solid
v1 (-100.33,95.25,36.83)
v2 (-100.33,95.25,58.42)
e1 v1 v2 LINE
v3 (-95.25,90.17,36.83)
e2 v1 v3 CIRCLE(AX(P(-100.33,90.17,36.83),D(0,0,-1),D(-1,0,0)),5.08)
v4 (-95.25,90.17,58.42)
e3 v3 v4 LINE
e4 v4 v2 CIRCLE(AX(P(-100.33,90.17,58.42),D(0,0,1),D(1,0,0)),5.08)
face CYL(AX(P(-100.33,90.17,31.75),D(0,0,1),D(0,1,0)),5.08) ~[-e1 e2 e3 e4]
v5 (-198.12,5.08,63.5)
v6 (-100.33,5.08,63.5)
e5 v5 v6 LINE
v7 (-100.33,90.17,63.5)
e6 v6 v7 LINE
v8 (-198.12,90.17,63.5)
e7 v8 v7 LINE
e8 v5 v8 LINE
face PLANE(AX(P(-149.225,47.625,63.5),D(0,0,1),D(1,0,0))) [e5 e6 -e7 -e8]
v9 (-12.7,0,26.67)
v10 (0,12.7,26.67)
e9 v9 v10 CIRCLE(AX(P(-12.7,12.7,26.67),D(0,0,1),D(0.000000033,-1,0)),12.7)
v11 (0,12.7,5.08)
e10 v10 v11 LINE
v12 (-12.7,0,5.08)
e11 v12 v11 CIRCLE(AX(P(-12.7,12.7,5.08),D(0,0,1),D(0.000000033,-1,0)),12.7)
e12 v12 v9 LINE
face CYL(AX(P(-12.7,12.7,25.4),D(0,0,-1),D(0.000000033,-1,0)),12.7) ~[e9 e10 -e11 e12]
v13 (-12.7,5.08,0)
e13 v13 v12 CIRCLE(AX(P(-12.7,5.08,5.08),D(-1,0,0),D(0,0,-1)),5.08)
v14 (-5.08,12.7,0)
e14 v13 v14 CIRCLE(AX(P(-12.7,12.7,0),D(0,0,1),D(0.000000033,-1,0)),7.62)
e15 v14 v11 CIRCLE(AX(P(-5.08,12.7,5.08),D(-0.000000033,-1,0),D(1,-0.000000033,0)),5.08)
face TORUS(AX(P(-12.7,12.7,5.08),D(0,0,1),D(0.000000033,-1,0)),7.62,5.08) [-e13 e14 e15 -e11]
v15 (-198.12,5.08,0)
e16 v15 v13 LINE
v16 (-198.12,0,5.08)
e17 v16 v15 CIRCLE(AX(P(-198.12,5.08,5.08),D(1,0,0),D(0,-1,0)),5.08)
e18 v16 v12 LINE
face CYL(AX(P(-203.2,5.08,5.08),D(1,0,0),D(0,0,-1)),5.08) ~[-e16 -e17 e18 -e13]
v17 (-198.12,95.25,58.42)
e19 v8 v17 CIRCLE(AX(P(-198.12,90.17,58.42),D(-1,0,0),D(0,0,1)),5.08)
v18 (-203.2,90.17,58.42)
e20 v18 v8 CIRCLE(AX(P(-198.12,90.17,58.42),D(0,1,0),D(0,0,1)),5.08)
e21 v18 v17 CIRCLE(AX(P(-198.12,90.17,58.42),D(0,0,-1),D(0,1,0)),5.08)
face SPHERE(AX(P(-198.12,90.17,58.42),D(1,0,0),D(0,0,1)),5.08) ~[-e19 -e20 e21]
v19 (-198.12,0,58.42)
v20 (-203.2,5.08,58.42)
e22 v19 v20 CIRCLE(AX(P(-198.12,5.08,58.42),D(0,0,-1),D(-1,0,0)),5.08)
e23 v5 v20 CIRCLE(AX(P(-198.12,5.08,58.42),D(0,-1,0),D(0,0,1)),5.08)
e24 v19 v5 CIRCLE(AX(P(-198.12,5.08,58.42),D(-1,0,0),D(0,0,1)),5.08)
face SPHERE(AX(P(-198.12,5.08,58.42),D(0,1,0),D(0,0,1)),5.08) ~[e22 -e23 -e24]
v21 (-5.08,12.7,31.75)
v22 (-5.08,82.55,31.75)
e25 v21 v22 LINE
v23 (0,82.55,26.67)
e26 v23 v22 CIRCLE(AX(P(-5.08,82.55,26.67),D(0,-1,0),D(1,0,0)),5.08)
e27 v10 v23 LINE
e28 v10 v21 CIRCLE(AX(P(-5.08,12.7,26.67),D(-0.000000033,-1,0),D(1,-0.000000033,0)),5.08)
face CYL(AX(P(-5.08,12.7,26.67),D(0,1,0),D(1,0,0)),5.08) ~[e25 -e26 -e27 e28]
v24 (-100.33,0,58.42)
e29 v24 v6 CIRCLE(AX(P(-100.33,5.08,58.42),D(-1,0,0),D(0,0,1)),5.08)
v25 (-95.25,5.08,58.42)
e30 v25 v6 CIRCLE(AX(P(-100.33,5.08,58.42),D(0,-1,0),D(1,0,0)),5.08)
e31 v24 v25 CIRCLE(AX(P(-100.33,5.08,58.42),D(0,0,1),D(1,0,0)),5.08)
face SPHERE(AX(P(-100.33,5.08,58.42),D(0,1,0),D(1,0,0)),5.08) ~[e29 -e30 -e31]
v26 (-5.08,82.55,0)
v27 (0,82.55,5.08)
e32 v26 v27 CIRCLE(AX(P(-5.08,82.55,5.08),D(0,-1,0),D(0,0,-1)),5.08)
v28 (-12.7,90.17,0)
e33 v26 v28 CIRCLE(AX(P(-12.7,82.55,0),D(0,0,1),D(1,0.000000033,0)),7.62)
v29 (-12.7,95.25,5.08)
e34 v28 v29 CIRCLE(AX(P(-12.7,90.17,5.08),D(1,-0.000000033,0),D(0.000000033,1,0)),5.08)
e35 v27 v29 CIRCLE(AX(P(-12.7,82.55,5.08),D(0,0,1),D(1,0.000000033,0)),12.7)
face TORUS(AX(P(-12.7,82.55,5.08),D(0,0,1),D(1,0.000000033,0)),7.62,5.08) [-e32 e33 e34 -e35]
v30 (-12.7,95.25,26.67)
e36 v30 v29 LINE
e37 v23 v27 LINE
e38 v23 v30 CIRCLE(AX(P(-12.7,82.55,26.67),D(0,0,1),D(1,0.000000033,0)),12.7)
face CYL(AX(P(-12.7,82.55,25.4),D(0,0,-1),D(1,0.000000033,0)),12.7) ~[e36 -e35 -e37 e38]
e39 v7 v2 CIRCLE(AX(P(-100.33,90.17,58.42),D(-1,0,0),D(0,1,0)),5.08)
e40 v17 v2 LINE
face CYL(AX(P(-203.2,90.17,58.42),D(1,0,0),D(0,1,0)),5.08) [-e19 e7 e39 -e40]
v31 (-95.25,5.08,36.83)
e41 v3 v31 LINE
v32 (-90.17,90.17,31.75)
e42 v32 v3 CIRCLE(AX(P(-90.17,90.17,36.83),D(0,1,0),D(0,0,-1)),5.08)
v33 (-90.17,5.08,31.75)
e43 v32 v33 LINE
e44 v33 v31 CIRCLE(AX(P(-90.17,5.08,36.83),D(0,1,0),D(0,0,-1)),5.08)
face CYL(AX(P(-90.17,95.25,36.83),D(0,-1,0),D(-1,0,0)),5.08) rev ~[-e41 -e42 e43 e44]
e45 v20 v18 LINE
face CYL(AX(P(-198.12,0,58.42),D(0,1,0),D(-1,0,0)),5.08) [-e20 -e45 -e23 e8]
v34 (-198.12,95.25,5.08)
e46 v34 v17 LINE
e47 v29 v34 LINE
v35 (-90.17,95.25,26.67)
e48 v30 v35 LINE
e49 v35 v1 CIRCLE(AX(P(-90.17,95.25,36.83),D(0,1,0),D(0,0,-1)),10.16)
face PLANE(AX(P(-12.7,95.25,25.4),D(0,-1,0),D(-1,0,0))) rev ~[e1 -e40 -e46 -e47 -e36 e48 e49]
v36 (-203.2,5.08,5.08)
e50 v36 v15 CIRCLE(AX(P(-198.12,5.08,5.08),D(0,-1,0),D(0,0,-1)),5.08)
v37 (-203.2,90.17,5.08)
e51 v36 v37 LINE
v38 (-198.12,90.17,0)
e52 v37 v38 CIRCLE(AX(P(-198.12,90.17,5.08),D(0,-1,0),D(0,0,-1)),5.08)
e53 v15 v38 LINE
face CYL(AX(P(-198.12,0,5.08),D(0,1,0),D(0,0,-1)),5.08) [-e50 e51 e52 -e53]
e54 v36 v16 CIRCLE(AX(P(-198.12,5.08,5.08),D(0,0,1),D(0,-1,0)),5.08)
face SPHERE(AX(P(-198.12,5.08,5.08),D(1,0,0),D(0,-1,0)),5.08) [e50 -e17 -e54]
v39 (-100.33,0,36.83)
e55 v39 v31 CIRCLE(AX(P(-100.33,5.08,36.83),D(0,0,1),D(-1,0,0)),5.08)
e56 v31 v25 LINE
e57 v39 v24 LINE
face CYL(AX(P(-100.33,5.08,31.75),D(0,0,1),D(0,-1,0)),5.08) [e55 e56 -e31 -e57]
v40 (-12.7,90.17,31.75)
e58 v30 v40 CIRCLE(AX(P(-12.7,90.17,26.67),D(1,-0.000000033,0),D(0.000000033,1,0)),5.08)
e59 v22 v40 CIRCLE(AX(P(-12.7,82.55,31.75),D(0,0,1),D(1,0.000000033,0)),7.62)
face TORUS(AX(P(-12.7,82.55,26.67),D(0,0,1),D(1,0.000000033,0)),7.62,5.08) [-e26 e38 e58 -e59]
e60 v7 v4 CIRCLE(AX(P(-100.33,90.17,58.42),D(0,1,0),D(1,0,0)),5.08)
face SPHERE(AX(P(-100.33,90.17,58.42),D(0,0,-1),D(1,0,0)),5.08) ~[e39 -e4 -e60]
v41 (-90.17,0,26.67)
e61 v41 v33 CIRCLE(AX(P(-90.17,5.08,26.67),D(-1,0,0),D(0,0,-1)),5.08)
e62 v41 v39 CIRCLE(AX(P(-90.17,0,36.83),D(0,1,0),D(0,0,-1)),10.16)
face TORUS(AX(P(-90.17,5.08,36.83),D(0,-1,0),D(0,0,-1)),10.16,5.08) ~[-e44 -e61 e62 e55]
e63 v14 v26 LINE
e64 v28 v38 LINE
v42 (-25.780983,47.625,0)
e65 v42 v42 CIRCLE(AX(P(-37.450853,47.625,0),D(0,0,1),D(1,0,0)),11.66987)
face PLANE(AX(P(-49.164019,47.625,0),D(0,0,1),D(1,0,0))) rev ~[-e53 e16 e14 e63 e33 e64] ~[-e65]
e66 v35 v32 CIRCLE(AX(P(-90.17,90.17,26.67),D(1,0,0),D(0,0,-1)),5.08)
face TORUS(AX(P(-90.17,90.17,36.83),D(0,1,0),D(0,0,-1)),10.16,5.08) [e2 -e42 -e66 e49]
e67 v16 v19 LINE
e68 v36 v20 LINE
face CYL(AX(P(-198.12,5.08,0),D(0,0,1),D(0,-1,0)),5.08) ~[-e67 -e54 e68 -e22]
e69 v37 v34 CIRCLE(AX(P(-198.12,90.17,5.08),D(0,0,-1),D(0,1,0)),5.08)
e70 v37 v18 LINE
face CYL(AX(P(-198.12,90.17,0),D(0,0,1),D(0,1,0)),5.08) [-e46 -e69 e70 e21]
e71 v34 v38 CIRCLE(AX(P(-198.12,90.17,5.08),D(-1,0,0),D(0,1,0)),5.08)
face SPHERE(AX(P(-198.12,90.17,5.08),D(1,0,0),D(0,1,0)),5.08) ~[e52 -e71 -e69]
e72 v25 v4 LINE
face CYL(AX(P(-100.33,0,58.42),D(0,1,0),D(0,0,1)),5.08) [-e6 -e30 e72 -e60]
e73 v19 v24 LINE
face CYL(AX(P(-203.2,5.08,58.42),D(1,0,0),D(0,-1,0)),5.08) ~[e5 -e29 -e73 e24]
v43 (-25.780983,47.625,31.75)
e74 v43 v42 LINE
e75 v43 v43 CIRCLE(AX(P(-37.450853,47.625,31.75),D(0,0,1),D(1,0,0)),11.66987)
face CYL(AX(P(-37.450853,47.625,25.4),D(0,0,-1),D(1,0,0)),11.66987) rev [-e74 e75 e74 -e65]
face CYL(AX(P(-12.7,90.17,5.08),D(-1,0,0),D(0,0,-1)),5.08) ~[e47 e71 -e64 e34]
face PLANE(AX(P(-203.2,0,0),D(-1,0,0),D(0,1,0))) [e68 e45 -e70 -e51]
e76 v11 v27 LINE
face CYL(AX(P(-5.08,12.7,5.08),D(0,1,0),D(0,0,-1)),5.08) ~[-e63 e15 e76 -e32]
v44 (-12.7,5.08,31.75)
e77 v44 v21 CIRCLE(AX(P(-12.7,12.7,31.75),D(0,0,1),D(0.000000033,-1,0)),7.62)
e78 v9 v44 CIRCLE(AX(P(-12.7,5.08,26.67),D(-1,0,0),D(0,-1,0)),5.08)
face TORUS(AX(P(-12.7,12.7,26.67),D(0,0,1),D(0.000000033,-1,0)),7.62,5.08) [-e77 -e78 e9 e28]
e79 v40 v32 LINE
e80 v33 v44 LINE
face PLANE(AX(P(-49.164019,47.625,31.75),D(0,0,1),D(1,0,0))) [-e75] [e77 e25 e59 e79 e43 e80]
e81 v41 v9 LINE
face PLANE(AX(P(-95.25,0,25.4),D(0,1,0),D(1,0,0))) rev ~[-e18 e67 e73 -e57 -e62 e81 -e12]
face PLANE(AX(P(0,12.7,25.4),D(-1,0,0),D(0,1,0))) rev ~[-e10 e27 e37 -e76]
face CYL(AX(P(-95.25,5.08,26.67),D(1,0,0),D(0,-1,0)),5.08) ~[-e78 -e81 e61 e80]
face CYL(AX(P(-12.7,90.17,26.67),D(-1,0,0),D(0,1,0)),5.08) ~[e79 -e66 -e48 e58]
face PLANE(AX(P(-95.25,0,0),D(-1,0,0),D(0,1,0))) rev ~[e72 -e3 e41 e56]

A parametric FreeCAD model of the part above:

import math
import FreeCAD as App
import Part
import Sketcher

V = App.Vector
Q = App.Units.Quantity


def edges_at(feature, points):
    """Names of the edges that pass closest to the given points."""
    edges = feature.Shape.Edges
    near = lambda p: min(range(len(edges)), key=lambda i: edges[i].distToShape(Part.Vertex(*p))[0])
    return sorted({f"Edge{near(p) + 1}" for p in points})


def add_polygon(sketch, points):
    """Adds a closed chain of lines whose ends are joined by coincident constraints."""
    first, n = sketch.GeometryCount, len(points)
    for a, b in zip(points, points[1:] + points[:1]):
        sketch.addGeometry(Part.LineSegment(App.Vector(*a, 0), App.Vector(*b, 0)), False)
    for i in range(n):
        sketch.addConstraint(Sketcher.Constraint("Coincident", first + i, 2, first + (i + 1) % n, 1))

doc = App.newDocument("Part")
params = doc.addObject("Spreadsheet::Sheet", "Params")
for row, (alias, value) in enumerate([
    ("sketch1_width", "4.25 in"),
    ("sketch1_height", "3.75 in"),
    ("pad1_length", "2.5 in"),
    ("sketch2_radius", "0.5 in"),
    ("sketch2_width", "3.25 in"),
    ("sketch2_height", "3.75 in"),
    ("pad2_length", "1 in"),
    ("sketch3_radius", "0.5 in"),
    ("sketch3_width", "3.25 in"),
    ("sketch3_height", "3.75 in"),
    ("pad3_length", "0.25 in"),
    ("fillet_radius", "0.2 in"),
], start=1):
    params.set(f"A{row}", alias)
    params.set(f"B{row}", "=" + value)
    params.setAlias(f"B{row}", alias)

body = doc.addObject("PartDesign::Body", "Body")

sketch1 = body.newObject("Sketcher::SketchObject", "Sketch")
sketch1.AttachmentSupport = (doc.getObject("XY_Plane"), [""])
sketch1.MapMode = "FlatFace"
add_polygon(sketch1, [(-203, 95), (-203, 0), (-95, 0), (-95, 95)])
sketch1.addConstraint([
    Sketcher.Constraint("Vertical", 0),
    Sketcher.Constraint("Horizontal", 1),
    Sketcher.Constraint("Vertical", 2),
    Sketcher.Constraint("Horizontal", 3),
    Sketcher.Constraint("PointOnObject", 0, 2, -1),
    Sketcher.Constraint("DistanceX", 0, 2, -1, 1, Q("8 in")),
    Sketcher.Constraint("DistanceX", 1, 1, 1, 2, Q("4.25 in")),
    Sketcher.Constraint("DistanceY", 0, 2, 0, 1, Q("3.75 in")),
])
sketch1.setExpression("Constraints[10]", "Params.sketch1_width")
sketch1.setExpression("Constraints[11]", "Params.sketch1_height")
pad1 = body.newObject("PartDesign::Pad", "Pad")
pad1.Profile = sketch1
pad1.setExpression("Length", "Params.pad1_length")

sketch2 = body.newObject("Sketcher::SketchObject", "Sketch001")
sketch2.AttachmentSupport = (doc.getObject("XY_Plane"), [""])
sketch2.MapMode = "FlatFace"
sketch2.addGeometry([
    Part.LineSegment(V(-13, 95, 0), V(-95, 95, 0)),
    Part.LineSegment(V(-95, 95, 0), V(-95, 0, 0)),
    Part.LineSegment(V(-95, 0, 0), V(-13, 0, 0)),
    Part.ArcOfCircle(Part.Circle(V(-13, 13, 0), V(0, 0, 1), 13), math.radians(-90), math.radians(0)),
    Part.LineSegment(V(0, 13, 0), V(0, 83, 0)),
    Part.ArcOfCircle(Part.Circle(V(-13, 83, 0), V(0, 0, 1), 13), math.radians(0), math.radians(90)),
    Part.Circle(V(-37, 48, 0), V(0, 0, 1), 12),
], False)
sketch2.addConstraint([
    Sketcher.Constraint("Coincident", 0, 2, 1, 1),
    Sketcher.Constraint("Coincident", 1, 2, 2, 1),
    Sketcher.Constraint("Tangent", 2, 2, 3, 1),
    Sketcher.Constraint("Tangent", 3, 2, 4, 1),
    Sketcher.Constraint("Tangent", 4, 2, 5, 1),
    Sketcher.Constraint("Tangent", 5, 2, 0, 1),
    Sketcher.Constraint("Horizontal", 0),
    Sketcher.Constraint("Vertical", 1),
    Sketcher.Constraint("Horizontal", 2),
    Sketcher.Constraint("Vertical", 4),
    Sketcher.Constraint("Equal", 3, 5),
    Sketcher.Constraint("PointOnObject", 1, 2, -1),
    Sketcher.Constraint("PointOnObject", 3, 2, -2),
    Sketcher.Constraint("Radius", 3, Q("0.5 in")),
    Sketcher.Constraint("DistanceX", 0, 2, 0, 1, Q("3.25 in")),
    Sketcher.Constraint("DistanceY", 1, 2, 1, 1, Q("3.75 in")),
    Sketcher.Constraint("Diameter", 6, 23.33974),
    Sketcher.Constraint("DistanceY", -1, 1, 6, 3, Q("1.875 in")),
    Sketcher.Constraint("DistanceX", 6, 3, -1, 1, 37.450853),
])
sketch2.setExpression("Constraints[13]", "Params.sketch2_radius")
sketch2.setExpression("Constraints[14]", "Params.sketch2_width")
sketch2.setExpression("Constraints[15]", "Params.sketch2_height")
pad2 = body.newObject("PartDesign::Pad", "Pad001")
pad2.Profile = sketch2
pad2.setExpression("Length", "Params.pad2_length")

sketch3 = body.newObject("Sketcher::SketchObject", "Sketch002")
sketch3.AttachmentSupport = (doc.getObject("XY_Plane"), [""])
sketch3.MapMode = "FlatFace"
sketch3.AttachmentOffset = App.Placement(V(0, 0, 1 * 25.4), App.Rotation())
sketch3.addGeometry([
    Part.LineSegment(V(-13, 95, 0), V(-95, 95, 0)),
    Part.LineSegment(V(-95, 95, 0), V(-95, 0, 0)),
    Part.LineSegment(V(-95, 0, 0), V(-13, 0, 0)),
    Part.ArcOfCircle(Part.Circle(V(-13, 13, 0), V(0, 0, 1), 13), math.radians(-90), math.radians(0)),
    Part.LineSegment(V(0, 13, 0), V(0, 83, 0)),
    Part.ArcOfCircle(Part.Circle(V(-13, 83, 0), V(0, 0, 1), 13), math.radians(0), math.radians(90)),
    Part.Circle(V(-37, 48, 0), V(0, 0, 1), 12),
], False)
sketch3.addConstraint([
    Sketcher.Constraint("Coincident", 0, 2, 1, 1),
    Sketcher.Constraint("Coincident", 1, 2, 2, 1),
    Sketcher.Constraint("Tangent", 2, 2, 3, 1),
    Sketcher.Constraint("Tangent", 3, 2, 4, 1),
    Sketcher.Constraint("Tangent", 4, 2, 5, 1),
    Sketcher.Constraint("Tangent", 5, 2, 0, 1),
    Sketcher.Constraint("Horizontal", 0),
    Sketcher.Constraint("Vertical", 1),
    Sketcher.Constraint("Horizontal", 2),
    Sketcher.Constraint("Vertical", 4),
    Sketcher.Constraint("Equal", 3, 5),
    Sketcher.Constraint("PointOnObject", 1, 2, -1),
    Sketcher.Constraint("PointOnObject", 3, 2, -2),
    Sketcher.Constraint("Radius", 3, Q("0.5 in")),
    Sketcher.Constraint("DistanceX", 0, 2, 0, 1, Q("3.25 in")),
    Sketcher.Constraint("DistanceY", 1, 2, 1, 1, Q("3.75 in")),
    Sketcher.Constraint("Diameter", 6, 23.33974),
    Sketcher.Constraint("DistanceY", -1, 1, 6, 3, Q("1.875 in")),
    Sketcher.Constraint("DistanceX", 6, 3, -1, 1, 37.450853),
])
sketch3.setExpression("Constraints[13]", "Params.sketch3_radius")
sketch3.setExpression("Constraints[14]", "Params.sketch3_width")
sketch3.setExpression("Constraints[15]", "Params.sketch3_height")
pad3 = body.newObject("PartDesign::Pad", "Pad002")
pad3.Profile = sketch3
pad3.setExpression("Length", "Params.pad3_length")
doc.recompute()

fillet = body.newObject("PartDesign::Fillet", "Fillet")
fillet.Base = (pad3, edges_at(pad3, [
    (0, 12.7, 15.875),
    (0, 47.625, 31.75),
    (0, 82.55, 15.875),
    (0, 47.625, 0),
    (-95.25, 95.25, 47.625),
    (-95.25, 47.625, 63.5),
    (-95.25, 0, 47.625),
    (-95.25, 47.625, 31.75),
    (-149.225, 95.25, 63.5),
    (-203.2, 47.625, 63.5),
    (-149.225, 0, 63.5),
    (-203.2, 95.25, 31.75),
    (-203.2, 0, 31.75),
    (-203.2, 47.625, 0),
]))
fillet.setExpression("Radius", "Params.fillet_radius")

doc.recompute()
